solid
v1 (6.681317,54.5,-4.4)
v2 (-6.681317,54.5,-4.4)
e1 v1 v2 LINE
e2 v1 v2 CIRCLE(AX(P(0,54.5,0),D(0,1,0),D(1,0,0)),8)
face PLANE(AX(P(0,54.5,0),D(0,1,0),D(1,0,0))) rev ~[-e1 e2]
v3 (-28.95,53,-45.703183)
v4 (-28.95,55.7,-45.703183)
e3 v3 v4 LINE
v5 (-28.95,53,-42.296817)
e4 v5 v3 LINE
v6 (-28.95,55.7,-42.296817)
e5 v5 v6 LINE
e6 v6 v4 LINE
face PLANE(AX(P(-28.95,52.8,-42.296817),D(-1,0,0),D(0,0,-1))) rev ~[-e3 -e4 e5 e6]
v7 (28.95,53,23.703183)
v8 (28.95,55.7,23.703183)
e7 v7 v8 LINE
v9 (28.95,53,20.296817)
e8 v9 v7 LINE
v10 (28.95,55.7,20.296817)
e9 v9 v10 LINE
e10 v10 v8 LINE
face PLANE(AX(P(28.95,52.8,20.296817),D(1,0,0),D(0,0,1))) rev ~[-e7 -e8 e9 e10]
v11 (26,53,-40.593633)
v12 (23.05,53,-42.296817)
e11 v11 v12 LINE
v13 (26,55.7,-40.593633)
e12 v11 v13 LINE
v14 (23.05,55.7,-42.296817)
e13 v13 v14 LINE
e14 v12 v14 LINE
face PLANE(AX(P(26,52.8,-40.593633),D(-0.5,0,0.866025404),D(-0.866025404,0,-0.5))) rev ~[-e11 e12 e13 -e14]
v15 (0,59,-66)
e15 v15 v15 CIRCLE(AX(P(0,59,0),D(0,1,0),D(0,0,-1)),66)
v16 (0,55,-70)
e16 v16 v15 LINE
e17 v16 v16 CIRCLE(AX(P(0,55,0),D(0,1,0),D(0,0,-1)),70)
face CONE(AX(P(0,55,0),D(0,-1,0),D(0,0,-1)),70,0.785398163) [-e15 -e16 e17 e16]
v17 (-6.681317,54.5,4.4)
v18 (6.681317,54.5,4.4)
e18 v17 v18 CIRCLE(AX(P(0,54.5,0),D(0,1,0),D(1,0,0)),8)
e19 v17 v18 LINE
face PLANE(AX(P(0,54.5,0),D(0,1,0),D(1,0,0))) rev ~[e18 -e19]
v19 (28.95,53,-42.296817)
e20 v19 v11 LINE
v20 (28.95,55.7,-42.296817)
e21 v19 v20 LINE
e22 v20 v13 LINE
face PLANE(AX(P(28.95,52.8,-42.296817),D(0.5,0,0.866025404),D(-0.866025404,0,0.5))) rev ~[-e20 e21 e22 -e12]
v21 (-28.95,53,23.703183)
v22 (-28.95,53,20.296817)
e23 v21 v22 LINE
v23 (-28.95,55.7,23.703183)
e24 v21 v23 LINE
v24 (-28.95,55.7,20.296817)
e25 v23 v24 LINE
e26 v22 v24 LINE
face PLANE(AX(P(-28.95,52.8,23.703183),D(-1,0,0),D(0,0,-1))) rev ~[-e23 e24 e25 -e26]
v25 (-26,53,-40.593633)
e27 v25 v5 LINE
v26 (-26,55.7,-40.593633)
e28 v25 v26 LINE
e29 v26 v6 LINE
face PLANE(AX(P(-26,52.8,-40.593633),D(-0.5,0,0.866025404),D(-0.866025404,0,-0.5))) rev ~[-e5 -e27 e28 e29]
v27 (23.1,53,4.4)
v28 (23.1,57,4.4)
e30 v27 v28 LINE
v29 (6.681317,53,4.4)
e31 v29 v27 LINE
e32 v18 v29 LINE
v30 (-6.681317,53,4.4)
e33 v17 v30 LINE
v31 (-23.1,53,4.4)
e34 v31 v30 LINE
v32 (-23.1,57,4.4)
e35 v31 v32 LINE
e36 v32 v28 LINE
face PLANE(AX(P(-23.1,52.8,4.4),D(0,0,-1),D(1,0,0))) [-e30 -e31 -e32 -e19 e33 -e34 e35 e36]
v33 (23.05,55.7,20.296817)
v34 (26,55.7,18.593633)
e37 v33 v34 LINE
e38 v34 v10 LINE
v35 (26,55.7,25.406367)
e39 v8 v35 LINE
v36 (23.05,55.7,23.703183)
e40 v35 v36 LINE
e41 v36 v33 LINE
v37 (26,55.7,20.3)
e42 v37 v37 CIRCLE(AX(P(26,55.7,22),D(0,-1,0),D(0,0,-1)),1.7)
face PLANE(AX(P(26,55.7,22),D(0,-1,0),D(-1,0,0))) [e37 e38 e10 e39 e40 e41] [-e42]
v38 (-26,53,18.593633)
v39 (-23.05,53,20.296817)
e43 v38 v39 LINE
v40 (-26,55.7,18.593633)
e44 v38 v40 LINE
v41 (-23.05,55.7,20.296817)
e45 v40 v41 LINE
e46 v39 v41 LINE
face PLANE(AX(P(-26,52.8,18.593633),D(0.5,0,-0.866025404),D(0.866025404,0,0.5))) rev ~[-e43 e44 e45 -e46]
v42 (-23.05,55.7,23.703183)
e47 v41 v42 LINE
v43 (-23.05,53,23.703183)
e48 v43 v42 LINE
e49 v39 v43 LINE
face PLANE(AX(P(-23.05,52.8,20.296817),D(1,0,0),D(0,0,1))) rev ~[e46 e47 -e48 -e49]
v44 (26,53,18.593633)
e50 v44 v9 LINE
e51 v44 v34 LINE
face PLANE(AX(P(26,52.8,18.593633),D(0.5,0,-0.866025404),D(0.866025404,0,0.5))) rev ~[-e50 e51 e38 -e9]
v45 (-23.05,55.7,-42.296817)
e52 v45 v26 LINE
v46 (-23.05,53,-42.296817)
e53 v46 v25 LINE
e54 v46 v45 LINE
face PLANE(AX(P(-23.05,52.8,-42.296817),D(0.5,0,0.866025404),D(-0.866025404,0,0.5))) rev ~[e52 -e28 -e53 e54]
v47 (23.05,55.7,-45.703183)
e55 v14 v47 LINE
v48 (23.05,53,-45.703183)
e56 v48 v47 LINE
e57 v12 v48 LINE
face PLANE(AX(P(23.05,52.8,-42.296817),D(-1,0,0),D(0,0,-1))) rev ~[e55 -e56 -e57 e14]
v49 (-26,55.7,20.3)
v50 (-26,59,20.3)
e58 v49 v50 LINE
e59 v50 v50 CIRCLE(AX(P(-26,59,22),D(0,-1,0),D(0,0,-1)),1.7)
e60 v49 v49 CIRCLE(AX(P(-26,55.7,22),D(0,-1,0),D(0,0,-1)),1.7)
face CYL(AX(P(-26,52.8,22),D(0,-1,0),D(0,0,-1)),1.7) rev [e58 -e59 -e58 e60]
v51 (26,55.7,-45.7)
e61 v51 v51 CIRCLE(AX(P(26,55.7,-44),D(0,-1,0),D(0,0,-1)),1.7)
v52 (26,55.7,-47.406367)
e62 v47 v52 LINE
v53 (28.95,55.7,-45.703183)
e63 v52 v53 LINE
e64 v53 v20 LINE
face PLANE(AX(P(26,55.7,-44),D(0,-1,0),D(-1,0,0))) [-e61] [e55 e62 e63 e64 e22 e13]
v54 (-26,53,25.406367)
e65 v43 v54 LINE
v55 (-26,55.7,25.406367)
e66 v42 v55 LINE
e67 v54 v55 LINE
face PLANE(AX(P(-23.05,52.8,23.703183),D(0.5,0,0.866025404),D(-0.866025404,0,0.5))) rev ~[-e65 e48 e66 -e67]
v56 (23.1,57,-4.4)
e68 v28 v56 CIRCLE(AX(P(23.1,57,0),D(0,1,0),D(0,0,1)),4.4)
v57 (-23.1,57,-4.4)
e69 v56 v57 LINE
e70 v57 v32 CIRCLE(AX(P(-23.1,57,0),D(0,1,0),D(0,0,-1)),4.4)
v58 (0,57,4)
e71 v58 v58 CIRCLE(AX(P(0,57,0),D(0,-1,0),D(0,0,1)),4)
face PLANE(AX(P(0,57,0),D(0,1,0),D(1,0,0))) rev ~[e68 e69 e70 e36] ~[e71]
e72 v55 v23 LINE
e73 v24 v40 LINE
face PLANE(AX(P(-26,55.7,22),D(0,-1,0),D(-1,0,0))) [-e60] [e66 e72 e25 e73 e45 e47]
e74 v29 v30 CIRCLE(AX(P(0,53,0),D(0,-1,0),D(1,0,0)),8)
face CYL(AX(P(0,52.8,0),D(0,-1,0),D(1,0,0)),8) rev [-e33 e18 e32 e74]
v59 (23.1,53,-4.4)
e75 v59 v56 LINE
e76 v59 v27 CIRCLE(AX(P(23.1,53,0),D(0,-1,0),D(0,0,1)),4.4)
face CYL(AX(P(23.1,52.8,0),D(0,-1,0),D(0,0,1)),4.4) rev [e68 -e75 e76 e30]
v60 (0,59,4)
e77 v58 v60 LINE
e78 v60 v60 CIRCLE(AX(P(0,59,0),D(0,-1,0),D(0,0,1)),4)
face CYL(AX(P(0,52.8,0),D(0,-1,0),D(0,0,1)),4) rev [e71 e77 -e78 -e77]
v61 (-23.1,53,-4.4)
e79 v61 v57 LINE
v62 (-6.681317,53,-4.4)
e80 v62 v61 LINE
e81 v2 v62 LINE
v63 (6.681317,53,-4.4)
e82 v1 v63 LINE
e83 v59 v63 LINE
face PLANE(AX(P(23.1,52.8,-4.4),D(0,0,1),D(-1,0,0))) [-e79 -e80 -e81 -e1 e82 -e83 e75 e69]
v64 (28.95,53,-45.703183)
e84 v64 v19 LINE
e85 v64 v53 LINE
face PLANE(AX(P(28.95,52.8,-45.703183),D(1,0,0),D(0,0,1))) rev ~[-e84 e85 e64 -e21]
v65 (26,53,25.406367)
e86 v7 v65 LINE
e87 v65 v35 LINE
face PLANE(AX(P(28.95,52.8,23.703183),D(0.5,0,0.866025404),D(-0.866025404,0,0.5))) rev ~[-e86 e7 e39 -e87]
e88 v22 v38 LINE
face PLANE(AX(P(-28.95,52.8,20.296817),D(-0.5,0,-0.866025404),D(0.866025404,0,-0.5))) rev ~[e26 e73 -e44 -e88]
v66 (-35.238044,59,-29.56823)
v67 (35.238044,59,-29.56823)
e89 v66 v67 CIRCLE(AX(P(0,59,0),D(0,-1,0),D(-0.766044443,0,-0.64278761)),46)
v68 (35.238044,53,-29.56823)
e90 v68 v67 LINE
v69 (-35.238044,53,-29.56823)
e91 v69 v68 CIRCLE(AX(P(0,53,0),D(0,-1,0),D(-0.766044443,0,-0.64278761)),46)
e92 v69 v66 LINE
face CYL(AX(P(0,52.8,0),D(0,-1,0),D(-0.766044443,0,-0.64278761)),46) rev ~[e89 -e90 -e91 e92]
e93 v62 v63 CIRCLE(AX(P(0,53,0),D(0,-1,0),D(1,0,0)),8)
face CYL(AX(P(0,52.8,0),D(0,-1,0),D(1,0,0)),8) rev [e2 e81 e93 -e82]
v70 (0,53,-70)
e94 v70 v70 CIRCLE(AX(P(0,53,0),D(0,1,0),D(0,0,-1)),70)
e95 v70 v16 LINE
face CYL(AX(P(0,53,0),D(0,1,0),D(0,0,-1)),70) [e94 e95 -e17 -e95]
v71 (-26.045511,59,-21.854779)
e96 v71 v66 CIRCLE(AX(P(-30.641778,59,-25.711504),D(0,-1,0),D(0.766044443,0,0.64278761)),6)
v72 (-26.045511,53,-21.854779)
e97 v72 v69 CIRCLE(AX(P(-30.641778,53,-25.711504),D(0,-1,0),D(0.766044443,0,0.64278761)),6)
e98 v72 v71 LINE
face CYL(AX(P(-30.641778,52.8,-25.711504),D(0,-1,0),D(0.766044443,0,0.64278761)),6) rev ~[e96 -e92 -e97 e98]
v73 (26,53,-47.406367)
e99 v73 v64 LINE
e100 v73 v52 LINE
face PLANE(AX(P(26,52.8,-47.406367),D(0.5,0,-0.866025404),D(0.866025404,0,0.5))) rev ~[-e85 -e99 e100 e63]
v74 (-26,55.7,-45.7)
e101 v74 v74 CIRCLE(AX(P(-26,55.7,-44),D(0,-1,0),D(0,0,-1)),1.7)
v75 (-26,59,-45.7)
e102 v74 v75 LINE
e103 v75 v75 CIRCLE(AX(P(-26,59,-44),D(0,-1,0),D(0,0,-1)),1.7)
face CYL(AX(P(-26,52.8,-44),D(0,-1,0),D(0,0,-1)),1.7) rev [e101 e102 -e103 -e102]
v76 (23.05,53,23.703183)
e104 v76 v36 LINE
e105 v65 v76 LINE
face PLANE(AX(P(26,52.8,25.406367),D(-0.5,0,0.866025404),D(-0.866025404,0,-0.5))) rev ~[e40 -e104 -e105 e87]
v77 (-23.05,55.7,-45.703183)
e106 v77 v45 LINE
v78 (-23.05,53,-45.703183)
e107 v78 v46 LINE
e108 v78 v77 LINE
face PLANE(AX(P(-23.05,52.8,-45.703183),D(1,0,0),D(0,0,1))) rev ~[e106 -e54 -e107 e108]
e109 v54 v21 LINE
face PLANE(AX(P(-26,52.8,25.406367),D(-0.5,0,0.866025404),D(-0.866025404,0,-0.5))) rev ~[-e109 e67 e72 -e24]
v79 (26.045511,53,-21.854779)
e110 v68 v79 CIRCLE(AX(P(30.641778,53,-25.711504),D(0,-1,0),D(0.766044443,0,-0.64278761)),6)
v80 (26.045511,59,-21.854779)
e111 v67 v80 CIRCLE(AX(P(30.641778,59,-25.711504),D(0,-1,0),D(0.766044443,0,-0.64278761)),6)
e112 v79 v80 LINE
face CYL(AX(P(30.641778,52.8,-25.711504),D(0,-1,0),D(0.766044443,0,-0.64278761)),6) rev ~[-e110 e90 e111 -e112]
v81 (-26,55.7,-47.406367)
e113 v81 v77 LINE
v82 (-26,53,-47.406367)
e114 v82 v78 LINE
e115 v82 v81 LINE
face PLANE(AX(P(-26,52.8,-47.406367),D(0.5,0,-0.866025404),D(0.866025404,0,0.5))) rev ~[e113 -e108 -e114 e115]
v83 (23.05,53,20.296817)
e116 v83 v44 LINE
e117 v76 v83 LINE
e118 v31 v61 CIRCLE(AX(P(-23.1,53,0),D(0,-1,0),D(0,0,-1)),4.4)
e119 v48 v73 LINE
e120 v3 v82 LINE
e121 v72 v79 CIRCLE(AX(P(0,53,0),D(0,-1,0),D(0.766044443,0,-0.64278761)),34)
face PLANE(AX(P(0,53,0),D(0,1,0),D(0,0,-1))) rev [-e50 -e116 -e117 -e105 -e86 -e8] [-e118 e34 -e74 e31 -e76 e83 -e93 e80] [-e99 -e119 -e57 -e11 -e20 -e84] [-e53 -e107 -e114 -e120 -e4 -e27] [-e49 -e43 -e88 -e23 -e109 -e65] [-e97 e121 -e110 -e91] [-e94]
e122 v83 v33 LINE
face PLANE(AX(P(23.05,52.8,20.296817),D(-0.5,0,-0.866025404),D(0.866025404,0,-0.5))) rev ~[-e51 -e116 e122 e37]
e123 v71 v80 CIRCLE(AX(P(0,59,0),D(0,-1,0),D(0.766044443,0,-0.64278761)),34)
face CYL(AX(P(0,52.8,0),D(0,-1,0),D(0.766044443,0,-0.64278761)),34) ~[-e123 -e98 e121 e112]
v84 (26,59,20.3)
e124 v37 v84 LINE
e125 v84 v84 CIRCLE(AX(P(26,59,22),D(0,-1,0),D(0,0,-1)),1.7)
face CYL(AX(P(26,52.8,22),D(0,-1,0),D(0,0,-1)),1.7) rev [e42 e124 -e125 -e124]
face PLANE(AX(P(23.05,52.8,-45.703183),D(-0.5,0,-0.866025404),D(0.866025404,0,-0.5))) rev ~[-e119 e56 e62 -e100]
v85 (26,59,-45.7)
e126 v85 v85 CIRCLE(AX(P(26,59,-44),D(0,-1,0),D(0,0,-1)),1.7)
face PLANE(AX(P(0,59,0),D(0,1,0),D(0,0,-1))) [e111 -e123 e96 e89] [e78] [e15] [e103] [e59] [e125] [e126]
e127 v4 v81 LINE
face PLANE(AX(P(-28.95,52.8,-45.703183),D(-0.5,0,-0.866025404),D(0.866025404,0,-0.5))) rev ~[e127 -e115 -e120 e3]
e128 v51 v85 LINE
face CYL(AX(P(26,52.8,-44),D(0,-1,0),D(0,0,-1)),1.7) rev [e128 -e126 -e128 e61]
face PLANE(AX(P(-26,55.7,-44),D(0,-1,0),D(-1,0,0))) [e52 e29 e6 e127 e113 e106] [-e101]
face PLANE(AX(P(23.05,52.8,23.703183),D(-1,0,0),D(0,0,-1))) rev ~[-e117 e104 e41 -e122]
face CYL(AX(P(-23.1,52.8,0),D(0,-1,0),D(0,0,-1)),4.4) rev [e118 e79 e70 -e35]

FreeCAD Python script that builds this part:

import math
import FreeCAD as App
import Part
import Sketcher
Q = App.Units.Quantity

doc = App.newDocument("Part")
body = doc.addObject("PartDesign::Body", "Body")

# Sketch on XY plane
sketch1 = body.newObject("Sketcher::SketchObject", "Sketch")
sketch1.AttachmentSupport = (doc.getObject("XY_Plane"), [""])
sketch1.MapMode = "FlatFace"
sketch1.addGeometry([
    Part.LineSegment(App.Vector(0, 53, 0), App.Vector(70, 53, 0)),  # 0
    Part.LineSegment(App.Vector(70, 53, 0), App.Vector(70, 55, 0)),  # 1
    Part.LineSegment(App.Vector(70, 55, 0), App.Vector(66, 59, 0)),  # 2
    Part.LineSegment(App.Vector(66, 59, 0), App.Vector(0, 59, 0)),  # 3
    Part.LineSegment(App.Vector(0, 59, 0), App.Vector(0, 53, 0)),  # 4
], False)
sketch1.addConstraint([
    Sketcher.Constraint("Coincident", 0, 2, 1, 1),
    Sketcher.Constraint("Coincident", 1, 2, 2, 1),
    Sketcher.Constraint("Coincident", 2, 2, 3, 1),
    Sketcher.Constraint("Coincident", 3, 2, 4, 1),
    Sketcher.Constraint("Coincident", 4, 2, 0, 1),
    Sketcher.Constraint("Horizontal", 0),
    Sketcher.Constraint("Vertical", 1),
    Sketcher.Constraint("Horizontal", 3),
    Sketcher.Constraint("Vertical", 4),
    Sketcher.Constraint("PointOnObject", 3, 2, -2),
    Sketcher.Constraint("DistanceX", 0, 1, 0, 2, 70.0),
    Sketcher.Constraint("DistanceX", 3, 2, 3, 1, 66.0),
    Sketcher.Constraint("DistanceY", 1, 1, 1, 2, 2.0),
    Sketcher.Constraint("DistanceY", 4, 2, 4, 1, 6.0),
    Sketcher.Constraint("DistanceY", -1, 1, 0, 2, 53.0),
])
revolution = body.newObject("PartDesign::Revolution", "Revolution")
revolution.Profile = sketch1
revolution.ReferenceAxis = (sketch1, ["V_Axis"])
revolution.Angle = 360

# Sketch on XZ plane
sketch2 = body.newObject("Sketcher::SketchObject", "Sketch001")
sketch2.AttachmentSupport = (doc.getObject("XZ_Plane"), [""])
sketch2.MapMode = "FlatFace"
sketch2.AttachmentOffset = App.Placement(App.Vector(0, 0, -52.8), App.Rotation())
sketch2.addGeometry([
    Part.LineSegment(App.Vector(-23.1, 4.4, 0), App.Vector(23.1, 4.4, 0)),
    Part.ArcOfCircle(Part.Circle(App.Vector(23.1, 0, 0), App.Vector(0, 0, 1), 4.4), math.radians(-90), math.radians(90)),
    Part.LineSegment(App.Vector(23.1, -4.4, 0), App.Vector(-23.1, -4.4, 0)),
    Part.ArcOfCircle(Part.Circle(App.Vector(-23.1, 0, 0), App.Vector(0, 0, 1), 4.4), math.radians(90), math.radians(270)),
], False)
sketch2.addConstraint([
    Sketcher.Constraint("Tangent", 0, 2, 1, 2),
    Sketcher.Constraint("Tangent", 1, 1, 2, 1),
    Sketcher.Constraint("Tangent", 2, 2, 3, 2),
    Sketcher.Constraint("Tangent", 3, 1, 0, 1),
    Sketcher.Constraint("Horizontal", 0),
    Sketcher.Constraint("Horizontal", 2),
    Sketcher.Constraint("Symmetric", 1, 3, 3, 3, -1, 1),
    Sketcher.Constraint("Radius", 1, 4.4),
    Sketcher.Constraint("DistanceX", 0, 1, 0, 2, 46.2),
])
pocket1 = body.newObject("PartDesign::Pocket", "Pocket")
pocket1.Profile = sketch2
pocket1.Length = 4.2

# Sketch on XZ plane
sketch3 = body.newObject("Sketcher::SketchObject", "Sketch002")
sketch3.AttachmentSupport = (doc.getObject("XZ_Plane"), [""])
sketch3.MapMode = "FlatFace"
sketch3.AttachmentOffset = App.Placement(App.Vector(0, 0, -52.8), App.Rotation())
sketch3.addGeometry(Part.Circle(App.Vector(0, 0, 0), App.Vector(0, 0, 1), 8), False)
sketch3.addConstraint([
    Sketcher.Constraint("Coincident", 0, 3, -1, 1),
    Sketcher.Constraint("Diameter", 0, 16.0),
])
pocket2 = body.newObject("PartDesign::Pocket", "Pocket001")
pocket2.Profile = sketch3
pocket2.Length = 1.7

# Sketch on XZ plane
sketch4 = body.newObject("Sketcher::SketchObject", "Sketch003")
sketch4.AttachmentSupport = (doc.getObject("XZ_Plane"), [""])
sketch4.MapMode = "FlatFace"
sketch4.AttachmentOffset = App.Placement(App.Vector(0, 0, -52.8), App.Rotation())
sketch4.addGeometry([
    Part.Circle(App.Vector(0, 0, 0), App.Vector(0, 0, 1), 4),  # 0
    Part.ArcOfCircle(Part.Circle(App.Vector(0, 0, 0), App.Vector(0, 0, 1), 46), math.radians(-140), math.radians(-40)),  # 1
    Part.ArcOfCircle(Part.Circle(App.Vector(-30.6, -25.7, 0), App.Vector(0, 0, 1), 6), math.radians(40), math.radians(220)),  # 2
    Part.ArcOfCircle(Part.Circle(App.Vector(0, 0, 0), App.Vector(0, 0, 1), 34), math.radians(-140), math.radians(-40)),  # 3
    Part.ArcOfCircle(Part.Circle(App.Vector(30.6, -25.7, 0), App.Vector(0, 0, 1), 6), math.radians(-40), math.radians(140)),  # 4
], False)
sketch4.addConstraint([
    Sketcher.Constraint("Tangent", 1, 1, 2, 2),
    Sketcher.Constraint("Tangent", 2, 1, 3, 1),
    Sketcher.Constraint("Tangent", 3, 2, 4, 2),
    Sketcher.Constraint("Tangent", 4, 1, 1, 2),
    Sketcher.Constraint("Coincident", 0, 3, -1, 1),
    Sketcher.Constraint("Coincident", 1, 3, -1, 1),
    Sketcher.Constraint("Coincident", 3, 3, -1, 1),
    Sketcher.Constraint("Horizontal", 2, 3, 4, 3),
    Sketcher.Constraint("Diameter", 0, 8.0),
    Sketcher.Constraint("Radius", 1, 46.0),
    Sketcher.Constraint("Radius", 2, 6.0),
    Sketcher.Constraint("DistanceY", 1, 1, -1, 1, 29.56823),
])
pocket3 = body.newObject("PartDesign::Pocket", "Pocket002")
pocket3.Profile = sketch4
pocket3.Length = 6.4

# Sketch on XZ plane
sketch5 = body.newObject("Sketcher::SketchObject", "Sketch004")
sketch5.AttachmentSupport = (doc.getObject("XZ_Plane"), [""])
sketch5.MapMode = "FlatFace"
sketch5.AttachmentOffset = App.Placement(App.Vector(0, 0, -52.8), App.Rotation())
sketch5.addGeometry([
    Part.Circle(App.Vector(-26, -44, 0), App.Vector(0, 0, 1), 1.7),
    Part.Circle(App.Vector(-26, 22, 0), App.Vector(0, 0, 1), 1.7),
    Part.Circle(App.Vector(26, -44, 0), App.Vector(0, 0, 1), 1.7),
    Part.Circle(App.Vector(26, 22, 0), App.Vector(0, 0, 1), 1.7),
], False)
sketch5.addConstraint([
    Sketcher.Constraint("Equal", 0, 1),
    Sketcher.Constraint("Equal", 1, 2),
    Sketcher.Constraint("Equal", 2, 3),
    Sketcher.Constraint("Symmetric", 0, 3, 2, 3, -2),
    Sketcher.Constraint("Symmetric", 1, 3, 3, 3, -2),
    Sketcher.Constraint("Vertical", 0, 3, 1, 3),
    Sketcher.Constraint("Diameter", 0, 3.4),
    Sketcher.Constraint("DistanceX", 0, 3, -1, 1, 26.0),
    Sketcher.Constraint("DistanceY", 0, 3, -1, 1, 44.0),
    Sketcher.Constraint("DistanceY", -1, 1, 1, 3, 22.0),
])
pocket4 = body.newObject("PartDesign::Pocket", "Pocket003")
pocket4.Profile = sketch5
pocket4.Length = 6.4

# Sketch on XZ plane
sketch6 = body.newObject("Sketcher::SketchObject", "Sketch005")
sketch6.AttachmentSupport = (doc.getObject("XZ_Plane"), [""])
sketch6.MapMode = "FlatFace"
sketch6.AttachmentOffset = App.Placement(App.Vector(0, 0, -52.8), App.Rotation())
sketch6.addGeometry([
    Part.LineSegment(App.Vector(-26, -40.6, 0), App.Vector(-23.1, -42.3, 0)),  # 0
    Part.LineSegment(App.Vector(-23.1, -42.3, 0), App.Vector(-23.1, -45.7, 0)),  # 1
    Part.LineSegment(App.Vector(-23.1, -45.7, 0), App.Vector(-26, -47.4, 0)),  # 2
    Part.LineSegment(App.Vector(-26, -47.4, 0), App.Vector(-28.9, -45.7, 0)),  # 3
    Part.LineSegment(App.Vector(-28.9, -45.7, 0), App.Vector(-28.9, -42.3, 0)),  # 4
    Part.LineSegment(App.Vector(-28.9, -42.3, 0), App.Vector(-26, -40.6, 0)),  # 5
    Part.LineSegment(App.Vector(-26, 25.4, 0), App.Vector(-23.1, 23.7, 0)),  # 6
    Part.LineSegment(App.Vector(-23.1, 23.7, 0), App.Vector(-23.1, 20.3, 0)),  # 7
    Part.LineSegment(App.Vector(-23.1, 20.3, 0), App.Vector(-26, 18.6, 0)),  # 8
    Part.LineSegment(App.Vector(-26, 18.6, 0), App.Vector(-28.9, 20.3, 0)),  # 9
    Part.LineSegment(App.Vector(-28.9, 20.3, 0), App.Vector(-28.9, 23.7, 0)),  # 10
    Part.LineSegment(App.Vector(-28.9, 23.7, 0), App.Vector(-26, 25.4, 0)),  # 11
    Part.LineSegment(App.Vector(26, -40.6, 0), App.Vector(28.9, -42.3, 0)),  # 12
    Part.LineSegment(App.Vector(28.9, -42.3, 0), App.Vector(28.9, -45.7, 0)),  # 13
    Part.LineSegment(App.Vector(28.9, -45.7, 0), App.Vector(26, -47.4, 0)),  # 14
    Part.LineSegment(App.Vector(26, -47.4, 0), App.Vector(23.1, -45.7, 0)),  # 15
    Part.LineSegment(App.Vector(23.1, -45.7, 0), App.Vector(23.1, -42.3, 0)),  # 16
    Part.LineSegment(App.Vector(23.1, -42.3, 0), App.Vector(26, -40.6, 0)),  # 17
    Part.LineSegment(App.Vector(26, 25.4, 0), App.Vector(28.9, 23.7, 0)),  # 18
    Part.LineSegment(App.Vector(28.9, 23.7, 0), App.Vector(28.9, 20.3, 0)),  # 19
    Part.LineSegment(App.Vector(28.9, 20.3, 0), App.Vector(26, 18.6, 0)),  # 20
    Part.LineSegment(App.Vector(26, 18.6, 0), App.Vector(23.1, 20.3, 0)),  # 21
    Part.LineSegment(App.Vector(23.1, 20.3, 0), App.Vector(23.1, 23.7, 0)),  # 22
    Part.LineSegment(App.Vector(23.1, 23.7, 0), App.Vector(26, 25.4, 0)),  # 23
], False)
sketch6.addConstraint([
    Sketcher.Constraint("Coincident", 0, 2, 1, 1),
    Sketcher.Constraint("Coincident", 1, 2, 2, 1),
    Sketcher.Constraint("Coincident", 2, 2, 3, 1),
    Sketcher.Constraint("Coincident", 3, 2, 4, 1),
    Sketcher.Constraint("Coincident", 4, 2, 5, 1),
    Sketcher.Constraint("Coincident", 5, 2, 0, 1),
    Sketcher.Constraint("Coincident", 6, 2, 7, 1),
    Sketcher.Constraint("Coincident", 7, 2, 8, 1),
    Sketcher.Constraint("Coincident", 8, 2, 9, 1),
    Sketcher.Constraint("Coincident", 9, 2, 10, 1),
    Sketcher.Constraint("Coincident", 10, 2, 11, 1),
    Sketcher.Constraint("Coincident", 11, 2, 6, 1),
    Sketcher.Constraint("Coincident", 12, 2, 13, 1),
    Sketcher.Constraint("Coincident", 13, 2, 14, 1),
    Sketcher.Constraint("Coincident", 14, 2, 15, 1),
    Sketcher.Constraint("Coincident", 15, 2, 16, 1),
    Sketcher.Constraint("Coincident", 16, 2, 17, 1),
    Sketcher.Constraint("Coincident", 17, 2, 12, 1),
    Sketcher.Constraint("Coincident", 18, 2, 19, 1),
    Sketcher.Constraint("Coincident", 19, 2, 20, 1),
    Sketcher.Constraint("Coincident", 20, 2, 21, 1),
    Sketcher.Constraint("Coincident", 21, 2, 22, 1),
    Sketcher.Constraint("Coincident", 22, 2, 23, 1),
    Sketcher.Constraint("Coincident", 23, 2, 18, 1),
    Sketcher.Constraint("Vertical", 1),
    Sketcher.Constraint("Vertical", 4),
    Sketcher.Constraint("Vertical", 7),
    Sketcher.Constraint("Vertical", 10),
    Sketcher.Constraint("Vertical", 13),
    Sketcher.Constraint("Vertical", 16),
    Sketcher.Constraint("Vertical", 19),
    Sketcher.Constraint("Vertical", 22),
    Sketcher.Constraint("Symmetric", 4, 2, 12, 2, -2),
    Sketcher.Constraint("Symmetric", 2, 2, 14, 2, -2),
    Sketcher.Constraint("Symmetric", 1, 2, 15, 2, -2),
    Sketcher.Constraint("Symmetric", 5, 2, 17, 2, -2),
    Sketcher.Constraint("Symmetric", 10, 2, 18, 2, -2),
    Sketcher.Constraint("Symmetric", 8, 2, 20, 2, -2),
    Sketcher.Constraint("Symmetric", 7, 2, 21, 2, -2),
    Sketcher.Constraint("Symmetric", 11, 2, 23, 2, -2),
    Sketcher.Constraint("Parallel", 0, 3),
    Sketcher.Constraint("Parallel", 2, 5),
    Sketcher.Constraint("Parallel", 3, 6),
    Sketcher.Constraint("Parallel", 5, 8),
    Sketcher.Constraint("Parallel", 6, 9),
    Sketcher.Constraint("Parallel", 8, 11),
    Sketcher.Constraint("Parallel", 9, 12),
    Sketcher.Constraint("Parallel", 11, 14),
    Sketcher.Constraint("Parallel", 14, 17),
    Sketcher.Constraint("Parallel", 17, 20),
    Sketcher.Constraint("Parallel", 20, 23),
    Sketcher.Constraint("Horizontal", 1, 2, 3, 2),
    Sketcher.Constraint("Horizontal", 0, 2, 4, 2),
    Sketcher.Constraint("Horizontal", 7, 2, 9, 2),
    Sketcher.Constraint("Horizontal", 6, 2, 10, 2),
    Sketcher.Constraint("Vertical", 1, 2, 6, 2),
    Sketcher.Constraint("Vertical", 5, 2, 8, 2),
    Sketcher.Constraint("Equal", 4, 7),
    Sketcher.Constraint("Angle", 0, Q("-30 deg")),
    Sketcher.Constraint("DistanceX", 2, 2, -1, 1, 26.0),
    Sketcher.Constraint("DistanceY", 0, 2, 6, 2, 66.0),
    Sketcher.Constraint("DistanceX", 3, 2, 1, 2, 5.9),
    Sketcher.Constraint("DistanceY", 1, 2, 1, 1, 3.406367),
    Sketcher.Constraint("DistanceY", 0, 2, -1, 1, 42.296817),
])
pocket5 = body.newObject("PartDesign::Pocket", "Pocket004")
pocket5.Profile = sketch6
pocket5.Length = 2.9

doc.recompute()
